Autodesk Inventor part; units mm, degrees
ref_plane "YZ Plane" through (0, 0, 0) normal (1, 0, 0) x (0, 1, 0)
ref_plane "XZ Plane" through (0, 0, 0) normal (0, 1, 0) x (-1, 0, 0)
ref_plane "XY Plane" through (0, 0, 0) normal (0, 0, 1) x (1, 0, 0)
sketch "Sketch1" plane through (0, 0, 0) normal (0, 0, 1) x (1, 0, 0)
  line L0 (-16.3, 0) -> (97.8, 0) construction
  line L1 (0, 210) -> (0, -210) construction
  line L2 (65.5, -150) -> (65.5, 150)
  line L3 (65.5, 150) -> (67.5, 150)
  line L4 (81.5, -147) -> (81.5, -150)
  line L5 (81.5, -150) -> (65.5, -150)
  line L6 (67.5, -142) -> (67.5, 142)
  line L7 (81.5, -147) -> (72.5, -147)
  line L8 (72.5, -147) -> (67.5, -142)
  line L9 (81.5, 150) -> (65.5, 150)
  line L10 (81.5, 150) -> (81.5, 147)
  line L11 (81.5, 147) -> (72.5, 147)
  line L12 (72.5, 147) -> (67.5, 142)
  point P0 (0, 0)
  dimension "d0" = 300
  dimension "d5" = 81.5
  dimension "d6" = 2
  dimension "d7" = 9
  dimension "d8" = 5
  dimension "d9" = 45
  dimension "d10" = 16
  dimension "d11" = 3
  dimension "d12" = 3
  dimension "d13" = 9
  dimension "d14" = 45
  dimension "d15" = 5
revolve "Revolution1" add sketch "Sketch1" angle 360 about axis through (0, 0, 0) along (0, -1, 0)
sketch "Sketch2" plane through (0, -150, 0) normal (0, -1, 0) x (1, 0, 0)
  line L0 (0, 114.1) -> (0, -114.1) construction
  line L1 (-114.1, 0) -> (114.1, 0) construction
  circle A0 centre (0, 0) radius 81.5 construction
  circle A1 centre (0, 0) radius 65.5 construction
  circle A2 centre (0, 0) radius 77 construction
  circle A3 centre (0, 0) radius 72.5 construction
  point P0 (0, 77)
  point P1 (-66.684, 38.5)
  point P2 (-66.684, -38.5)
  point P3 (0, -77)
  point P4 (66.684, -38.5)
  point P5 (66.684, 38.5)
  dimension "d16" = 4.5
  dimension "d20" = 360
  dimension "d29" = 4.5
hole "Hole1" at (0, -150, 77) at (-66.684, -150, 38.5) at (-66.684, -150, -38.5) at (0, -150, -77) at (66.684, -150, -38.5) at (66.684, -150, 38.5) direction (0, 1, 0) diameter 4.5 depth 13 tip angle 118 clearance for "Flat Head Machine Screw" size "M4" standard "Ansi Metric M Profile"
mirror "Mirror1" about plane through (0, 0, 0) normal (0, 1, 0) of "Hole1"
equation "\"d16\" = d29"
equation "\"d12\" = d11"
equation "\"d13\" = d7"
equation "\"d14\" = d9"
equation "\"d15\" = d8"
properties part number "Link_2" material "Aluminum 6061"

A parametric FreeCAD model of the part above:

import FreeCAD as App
import Part
import Sketcher

V = App.Vector


def add_polygon(sketch, points):
    """Adds a closed chain of lines whose ends are joined by coincident constraints."""
    first, n = sketch.GeometryCount, len(points)
    for a, b in zip(points, points[1:] + points[:1]):
        sketch.addGeometry(Part.LineSegment(App.Vector(*a, 0), App.Vector(*b, 0)), False)
    for i in range(n):
        sketch.addConstraint(Sketcher.Constraint("Coincident", first + i, 2, first + (i + 1) % n, 1))

doc = App.newDocument("Part")
params = doc.addObject("Spreadsheet::Sheet", "Params")
for row, (alias, value) in enumerate([
    ("sketch1_width", "16 mm"),
    ("sketch1_width2", "9 mm"),
    ("sketch1_height", "300 mm"),
    ("sketch1_height2", "3 mm"),
    ("revolution_angle", "360 deg"),
    ("sketch2_diameter", "4.5 mm"),
    ("hole_diameter", "4.5 mm"),
    ("hole_depth", "13 mm"),
], start=1):
    params.set(f"A{row}", alias)
    params.set(f"B{row}", "=" + value)
    params.setAlias(f"B{row}", alias)

body = doc.addObject("PartDesign::Body", "Body")

sketch1 = doc.addObject("Sketcher::SketchObject", "Sketch")
body.addObject(sketch1)
sketch1.AttachmentSupport = (doc.XY_Plane, [""])
sketch1.MapMode = "FlatFace"
add_polygon(sketch1, [(65.5, 150), (65.5, -150), (81.5, -150), (81.5, -147), (72.5, -147), (67.5, -142), (67.5, 142), (72.5, 147), (81.5, 147), (81.5, 150)])
sketch1.addConstraint(Sketcher.Constraint("Vertical", 0))
sketch1.addConstraint(Sketcher.Constraint("Horizontal", 1))
sketch1.addConstraint(Sketcher.Constraint("Vertical", 2))
sketch1.addConstraint(Sketcher.Constraint("Horizontal", 3))
sketch1.addConstraint(Sketcher.Constraint("Vertical", 5))
sketch1.addConstraint(Sketcher.Constraint("Horizontal", 7))
sketch1.addConstraint(Sketcher.Constraint("Vertical", 8))
sketch1.addConstraint(Sketcher.Constraint("Horizontal", 9))
sketch1.addConstraint(Sketcher.Constraint("Symmetric", 3, 2, 6, 2, -1))
sketch1.addConstraint(Sketcher.Constraint("Symmetric", 1, 2, 8, 2, -1))
sketch1.addConstraint(Sketcher.Constraint("Perpendicular", 4, 6))
sketch1.addConstraint(Sketcher.Constraint("Equal", 4, 6))
sketch1.addConstraint(Sketcher.Constraint("DistanceX", 1, 1, 1, 2, 16.0))
sketch1.addConstraint(Sketcher.Constraint("DistanceX", 3, 2, 3, 1, 9.0))
sketch1.addConstraint(Sketcher.Constraint("DistanceY", 0, 2, 0, 1, 300.0))
sketch1.addConstraint(Sketcher.Constraint("DistanceY", 2, 1, 2, 2, 3.0))
sketch1.addConstraint(Sketcher.Constraint("DistanceX", 4, 2, 3, 2, 5.0))
sketch1.addConstraint(Sketcher.Constraint("DistanceX", -1, 1, 1, 2, 81.5))
sketch1.setExpression("Constraints[22]", "Params.sketch1_width")
sketch1.setExpression("Constraints[23]", "Params.sketch1_width2")
sketch1.setExpression("Constraints[24]", "Params.sketch1_height")
sketch1.setExpression("Constraints[25]", "Params.sketch1_height2")
revolution = doc.addObject("PartDesign::Revolution", "Revolution")
body.addObject(revolution)
revolution.Profile = sketch1
revolution.ReferenceAxis = (sketch1, ["V_Axis"])
revolution.setExpression("Angle", "Params.revolution_angle")

sketch2 = doc.addObject("Sketcher::SketchObject", "Sketch001")
body.addObject(sketch2)
sketch2.AttachmentSupport = (doc.XZ_Plane, [""])
sketch2.MapMode = "FlatFace"
sketch2.AttachmentOffset = App.Placement(V(0, 0, 150), App.Rotation())
sketch2.addGeometry(Part.Circle(V(0, 77, 0), V(0, 0, 1), 2.25), False)
sketch2.addGeometry(Part.Circle(V(-66.684, 38.5, 0), V(0, 0, 1), 2.25), False)
sketch2.addGeometry(Part.Circle(V(-66.684, -38.5, 0), V(0, 0, 1), 2.25), False)
sketch2.addGeometry(Part.Circle(V(0, -77, 0), V(0, 0, 1), 2.25), False)
sketch2.addGeometry(Part.Circle(V(66.684, -38.5, 0), V(0, 0, 1), 2.25), False)
sketch2.addGeometry(Part.Circle(V(66.684, 38.5, 0), V(0, 0, 1), 2.25), False)
sketch2.addConstraint(Sketcher.Constraint("Equal", 0, 1))
sketch2.addConstraint(Sketcher.Constraint("Equal", 1, 2))
sketch2.addConstraint(Sketcher.Constraint("Equal", 2, 3))
sketch2.addConstraint(Sketcher.Constraint("Equal", 3, 4))
sketch2.addConstraint(Sketcher.Constraint("Equal", 4, 5))
sketch2.addConstraint(Sketcher.Constraint("Symmetric", 0, 3, 3, 3, -1, 1))
sketch2.addConstraint(Sketcher.Constraint("Symmetric", 1, 3, 4, 3, -1, 1))
sketch2.addConstraint(Sketcher.Constraint("Symmetric", 2, 3, 5, 3, -1, 1))
sketch2.addConstraint(Sketcher.Constraint("Symmetric", 2, 3, 4, 3, -2))
sketch2.addConstraint(Sketcher.Constraint("PointOnObject", 0, 3, -2))
sketch2.addConstraint(Sketcher.Constraint("Diameter", 0, 4.5))
sketch2.addConstraint(Sketcher.Constraint("DistanceY", -1, 1, 0, 3, 77.0))
sketch2.addConstraint(Sketcher.Constraint("DistanceY", 2, 3, 1, 3, 77.0))
sketch2.addConstraint(Sketcher.Constraint("DistanceX", 1, 3, -1, 1, 66.684))
sketch2.setExpression("Constraints[10]", "Params.sketch2_diameter")
doc.recompute()
hole = doc.addObject("PartDesign::Hole", "Hole")
body.addObject(hole)
hole.Profile = sketch2
hole.ThreadType = "None"
hole.setExpression("Diameter", "Params.hole_diameter")
hole.DepthType = "Dimension"
hole.setExpression("Depth", "Params.hole_depth")
hole.DrillPoint = "Angled"
hole.DrillPointAngle = 118
doc.recompute()

mirrored = doc.addObject("PartDesign::Mirrored", "Mirrored")
body.addObject(mirrored)
mirrored.Originals = [hole]
mirrored.MirrorPlane = (doc.XZ_Plane, [""])
body.Tip = mirrored

doc.recompute()
